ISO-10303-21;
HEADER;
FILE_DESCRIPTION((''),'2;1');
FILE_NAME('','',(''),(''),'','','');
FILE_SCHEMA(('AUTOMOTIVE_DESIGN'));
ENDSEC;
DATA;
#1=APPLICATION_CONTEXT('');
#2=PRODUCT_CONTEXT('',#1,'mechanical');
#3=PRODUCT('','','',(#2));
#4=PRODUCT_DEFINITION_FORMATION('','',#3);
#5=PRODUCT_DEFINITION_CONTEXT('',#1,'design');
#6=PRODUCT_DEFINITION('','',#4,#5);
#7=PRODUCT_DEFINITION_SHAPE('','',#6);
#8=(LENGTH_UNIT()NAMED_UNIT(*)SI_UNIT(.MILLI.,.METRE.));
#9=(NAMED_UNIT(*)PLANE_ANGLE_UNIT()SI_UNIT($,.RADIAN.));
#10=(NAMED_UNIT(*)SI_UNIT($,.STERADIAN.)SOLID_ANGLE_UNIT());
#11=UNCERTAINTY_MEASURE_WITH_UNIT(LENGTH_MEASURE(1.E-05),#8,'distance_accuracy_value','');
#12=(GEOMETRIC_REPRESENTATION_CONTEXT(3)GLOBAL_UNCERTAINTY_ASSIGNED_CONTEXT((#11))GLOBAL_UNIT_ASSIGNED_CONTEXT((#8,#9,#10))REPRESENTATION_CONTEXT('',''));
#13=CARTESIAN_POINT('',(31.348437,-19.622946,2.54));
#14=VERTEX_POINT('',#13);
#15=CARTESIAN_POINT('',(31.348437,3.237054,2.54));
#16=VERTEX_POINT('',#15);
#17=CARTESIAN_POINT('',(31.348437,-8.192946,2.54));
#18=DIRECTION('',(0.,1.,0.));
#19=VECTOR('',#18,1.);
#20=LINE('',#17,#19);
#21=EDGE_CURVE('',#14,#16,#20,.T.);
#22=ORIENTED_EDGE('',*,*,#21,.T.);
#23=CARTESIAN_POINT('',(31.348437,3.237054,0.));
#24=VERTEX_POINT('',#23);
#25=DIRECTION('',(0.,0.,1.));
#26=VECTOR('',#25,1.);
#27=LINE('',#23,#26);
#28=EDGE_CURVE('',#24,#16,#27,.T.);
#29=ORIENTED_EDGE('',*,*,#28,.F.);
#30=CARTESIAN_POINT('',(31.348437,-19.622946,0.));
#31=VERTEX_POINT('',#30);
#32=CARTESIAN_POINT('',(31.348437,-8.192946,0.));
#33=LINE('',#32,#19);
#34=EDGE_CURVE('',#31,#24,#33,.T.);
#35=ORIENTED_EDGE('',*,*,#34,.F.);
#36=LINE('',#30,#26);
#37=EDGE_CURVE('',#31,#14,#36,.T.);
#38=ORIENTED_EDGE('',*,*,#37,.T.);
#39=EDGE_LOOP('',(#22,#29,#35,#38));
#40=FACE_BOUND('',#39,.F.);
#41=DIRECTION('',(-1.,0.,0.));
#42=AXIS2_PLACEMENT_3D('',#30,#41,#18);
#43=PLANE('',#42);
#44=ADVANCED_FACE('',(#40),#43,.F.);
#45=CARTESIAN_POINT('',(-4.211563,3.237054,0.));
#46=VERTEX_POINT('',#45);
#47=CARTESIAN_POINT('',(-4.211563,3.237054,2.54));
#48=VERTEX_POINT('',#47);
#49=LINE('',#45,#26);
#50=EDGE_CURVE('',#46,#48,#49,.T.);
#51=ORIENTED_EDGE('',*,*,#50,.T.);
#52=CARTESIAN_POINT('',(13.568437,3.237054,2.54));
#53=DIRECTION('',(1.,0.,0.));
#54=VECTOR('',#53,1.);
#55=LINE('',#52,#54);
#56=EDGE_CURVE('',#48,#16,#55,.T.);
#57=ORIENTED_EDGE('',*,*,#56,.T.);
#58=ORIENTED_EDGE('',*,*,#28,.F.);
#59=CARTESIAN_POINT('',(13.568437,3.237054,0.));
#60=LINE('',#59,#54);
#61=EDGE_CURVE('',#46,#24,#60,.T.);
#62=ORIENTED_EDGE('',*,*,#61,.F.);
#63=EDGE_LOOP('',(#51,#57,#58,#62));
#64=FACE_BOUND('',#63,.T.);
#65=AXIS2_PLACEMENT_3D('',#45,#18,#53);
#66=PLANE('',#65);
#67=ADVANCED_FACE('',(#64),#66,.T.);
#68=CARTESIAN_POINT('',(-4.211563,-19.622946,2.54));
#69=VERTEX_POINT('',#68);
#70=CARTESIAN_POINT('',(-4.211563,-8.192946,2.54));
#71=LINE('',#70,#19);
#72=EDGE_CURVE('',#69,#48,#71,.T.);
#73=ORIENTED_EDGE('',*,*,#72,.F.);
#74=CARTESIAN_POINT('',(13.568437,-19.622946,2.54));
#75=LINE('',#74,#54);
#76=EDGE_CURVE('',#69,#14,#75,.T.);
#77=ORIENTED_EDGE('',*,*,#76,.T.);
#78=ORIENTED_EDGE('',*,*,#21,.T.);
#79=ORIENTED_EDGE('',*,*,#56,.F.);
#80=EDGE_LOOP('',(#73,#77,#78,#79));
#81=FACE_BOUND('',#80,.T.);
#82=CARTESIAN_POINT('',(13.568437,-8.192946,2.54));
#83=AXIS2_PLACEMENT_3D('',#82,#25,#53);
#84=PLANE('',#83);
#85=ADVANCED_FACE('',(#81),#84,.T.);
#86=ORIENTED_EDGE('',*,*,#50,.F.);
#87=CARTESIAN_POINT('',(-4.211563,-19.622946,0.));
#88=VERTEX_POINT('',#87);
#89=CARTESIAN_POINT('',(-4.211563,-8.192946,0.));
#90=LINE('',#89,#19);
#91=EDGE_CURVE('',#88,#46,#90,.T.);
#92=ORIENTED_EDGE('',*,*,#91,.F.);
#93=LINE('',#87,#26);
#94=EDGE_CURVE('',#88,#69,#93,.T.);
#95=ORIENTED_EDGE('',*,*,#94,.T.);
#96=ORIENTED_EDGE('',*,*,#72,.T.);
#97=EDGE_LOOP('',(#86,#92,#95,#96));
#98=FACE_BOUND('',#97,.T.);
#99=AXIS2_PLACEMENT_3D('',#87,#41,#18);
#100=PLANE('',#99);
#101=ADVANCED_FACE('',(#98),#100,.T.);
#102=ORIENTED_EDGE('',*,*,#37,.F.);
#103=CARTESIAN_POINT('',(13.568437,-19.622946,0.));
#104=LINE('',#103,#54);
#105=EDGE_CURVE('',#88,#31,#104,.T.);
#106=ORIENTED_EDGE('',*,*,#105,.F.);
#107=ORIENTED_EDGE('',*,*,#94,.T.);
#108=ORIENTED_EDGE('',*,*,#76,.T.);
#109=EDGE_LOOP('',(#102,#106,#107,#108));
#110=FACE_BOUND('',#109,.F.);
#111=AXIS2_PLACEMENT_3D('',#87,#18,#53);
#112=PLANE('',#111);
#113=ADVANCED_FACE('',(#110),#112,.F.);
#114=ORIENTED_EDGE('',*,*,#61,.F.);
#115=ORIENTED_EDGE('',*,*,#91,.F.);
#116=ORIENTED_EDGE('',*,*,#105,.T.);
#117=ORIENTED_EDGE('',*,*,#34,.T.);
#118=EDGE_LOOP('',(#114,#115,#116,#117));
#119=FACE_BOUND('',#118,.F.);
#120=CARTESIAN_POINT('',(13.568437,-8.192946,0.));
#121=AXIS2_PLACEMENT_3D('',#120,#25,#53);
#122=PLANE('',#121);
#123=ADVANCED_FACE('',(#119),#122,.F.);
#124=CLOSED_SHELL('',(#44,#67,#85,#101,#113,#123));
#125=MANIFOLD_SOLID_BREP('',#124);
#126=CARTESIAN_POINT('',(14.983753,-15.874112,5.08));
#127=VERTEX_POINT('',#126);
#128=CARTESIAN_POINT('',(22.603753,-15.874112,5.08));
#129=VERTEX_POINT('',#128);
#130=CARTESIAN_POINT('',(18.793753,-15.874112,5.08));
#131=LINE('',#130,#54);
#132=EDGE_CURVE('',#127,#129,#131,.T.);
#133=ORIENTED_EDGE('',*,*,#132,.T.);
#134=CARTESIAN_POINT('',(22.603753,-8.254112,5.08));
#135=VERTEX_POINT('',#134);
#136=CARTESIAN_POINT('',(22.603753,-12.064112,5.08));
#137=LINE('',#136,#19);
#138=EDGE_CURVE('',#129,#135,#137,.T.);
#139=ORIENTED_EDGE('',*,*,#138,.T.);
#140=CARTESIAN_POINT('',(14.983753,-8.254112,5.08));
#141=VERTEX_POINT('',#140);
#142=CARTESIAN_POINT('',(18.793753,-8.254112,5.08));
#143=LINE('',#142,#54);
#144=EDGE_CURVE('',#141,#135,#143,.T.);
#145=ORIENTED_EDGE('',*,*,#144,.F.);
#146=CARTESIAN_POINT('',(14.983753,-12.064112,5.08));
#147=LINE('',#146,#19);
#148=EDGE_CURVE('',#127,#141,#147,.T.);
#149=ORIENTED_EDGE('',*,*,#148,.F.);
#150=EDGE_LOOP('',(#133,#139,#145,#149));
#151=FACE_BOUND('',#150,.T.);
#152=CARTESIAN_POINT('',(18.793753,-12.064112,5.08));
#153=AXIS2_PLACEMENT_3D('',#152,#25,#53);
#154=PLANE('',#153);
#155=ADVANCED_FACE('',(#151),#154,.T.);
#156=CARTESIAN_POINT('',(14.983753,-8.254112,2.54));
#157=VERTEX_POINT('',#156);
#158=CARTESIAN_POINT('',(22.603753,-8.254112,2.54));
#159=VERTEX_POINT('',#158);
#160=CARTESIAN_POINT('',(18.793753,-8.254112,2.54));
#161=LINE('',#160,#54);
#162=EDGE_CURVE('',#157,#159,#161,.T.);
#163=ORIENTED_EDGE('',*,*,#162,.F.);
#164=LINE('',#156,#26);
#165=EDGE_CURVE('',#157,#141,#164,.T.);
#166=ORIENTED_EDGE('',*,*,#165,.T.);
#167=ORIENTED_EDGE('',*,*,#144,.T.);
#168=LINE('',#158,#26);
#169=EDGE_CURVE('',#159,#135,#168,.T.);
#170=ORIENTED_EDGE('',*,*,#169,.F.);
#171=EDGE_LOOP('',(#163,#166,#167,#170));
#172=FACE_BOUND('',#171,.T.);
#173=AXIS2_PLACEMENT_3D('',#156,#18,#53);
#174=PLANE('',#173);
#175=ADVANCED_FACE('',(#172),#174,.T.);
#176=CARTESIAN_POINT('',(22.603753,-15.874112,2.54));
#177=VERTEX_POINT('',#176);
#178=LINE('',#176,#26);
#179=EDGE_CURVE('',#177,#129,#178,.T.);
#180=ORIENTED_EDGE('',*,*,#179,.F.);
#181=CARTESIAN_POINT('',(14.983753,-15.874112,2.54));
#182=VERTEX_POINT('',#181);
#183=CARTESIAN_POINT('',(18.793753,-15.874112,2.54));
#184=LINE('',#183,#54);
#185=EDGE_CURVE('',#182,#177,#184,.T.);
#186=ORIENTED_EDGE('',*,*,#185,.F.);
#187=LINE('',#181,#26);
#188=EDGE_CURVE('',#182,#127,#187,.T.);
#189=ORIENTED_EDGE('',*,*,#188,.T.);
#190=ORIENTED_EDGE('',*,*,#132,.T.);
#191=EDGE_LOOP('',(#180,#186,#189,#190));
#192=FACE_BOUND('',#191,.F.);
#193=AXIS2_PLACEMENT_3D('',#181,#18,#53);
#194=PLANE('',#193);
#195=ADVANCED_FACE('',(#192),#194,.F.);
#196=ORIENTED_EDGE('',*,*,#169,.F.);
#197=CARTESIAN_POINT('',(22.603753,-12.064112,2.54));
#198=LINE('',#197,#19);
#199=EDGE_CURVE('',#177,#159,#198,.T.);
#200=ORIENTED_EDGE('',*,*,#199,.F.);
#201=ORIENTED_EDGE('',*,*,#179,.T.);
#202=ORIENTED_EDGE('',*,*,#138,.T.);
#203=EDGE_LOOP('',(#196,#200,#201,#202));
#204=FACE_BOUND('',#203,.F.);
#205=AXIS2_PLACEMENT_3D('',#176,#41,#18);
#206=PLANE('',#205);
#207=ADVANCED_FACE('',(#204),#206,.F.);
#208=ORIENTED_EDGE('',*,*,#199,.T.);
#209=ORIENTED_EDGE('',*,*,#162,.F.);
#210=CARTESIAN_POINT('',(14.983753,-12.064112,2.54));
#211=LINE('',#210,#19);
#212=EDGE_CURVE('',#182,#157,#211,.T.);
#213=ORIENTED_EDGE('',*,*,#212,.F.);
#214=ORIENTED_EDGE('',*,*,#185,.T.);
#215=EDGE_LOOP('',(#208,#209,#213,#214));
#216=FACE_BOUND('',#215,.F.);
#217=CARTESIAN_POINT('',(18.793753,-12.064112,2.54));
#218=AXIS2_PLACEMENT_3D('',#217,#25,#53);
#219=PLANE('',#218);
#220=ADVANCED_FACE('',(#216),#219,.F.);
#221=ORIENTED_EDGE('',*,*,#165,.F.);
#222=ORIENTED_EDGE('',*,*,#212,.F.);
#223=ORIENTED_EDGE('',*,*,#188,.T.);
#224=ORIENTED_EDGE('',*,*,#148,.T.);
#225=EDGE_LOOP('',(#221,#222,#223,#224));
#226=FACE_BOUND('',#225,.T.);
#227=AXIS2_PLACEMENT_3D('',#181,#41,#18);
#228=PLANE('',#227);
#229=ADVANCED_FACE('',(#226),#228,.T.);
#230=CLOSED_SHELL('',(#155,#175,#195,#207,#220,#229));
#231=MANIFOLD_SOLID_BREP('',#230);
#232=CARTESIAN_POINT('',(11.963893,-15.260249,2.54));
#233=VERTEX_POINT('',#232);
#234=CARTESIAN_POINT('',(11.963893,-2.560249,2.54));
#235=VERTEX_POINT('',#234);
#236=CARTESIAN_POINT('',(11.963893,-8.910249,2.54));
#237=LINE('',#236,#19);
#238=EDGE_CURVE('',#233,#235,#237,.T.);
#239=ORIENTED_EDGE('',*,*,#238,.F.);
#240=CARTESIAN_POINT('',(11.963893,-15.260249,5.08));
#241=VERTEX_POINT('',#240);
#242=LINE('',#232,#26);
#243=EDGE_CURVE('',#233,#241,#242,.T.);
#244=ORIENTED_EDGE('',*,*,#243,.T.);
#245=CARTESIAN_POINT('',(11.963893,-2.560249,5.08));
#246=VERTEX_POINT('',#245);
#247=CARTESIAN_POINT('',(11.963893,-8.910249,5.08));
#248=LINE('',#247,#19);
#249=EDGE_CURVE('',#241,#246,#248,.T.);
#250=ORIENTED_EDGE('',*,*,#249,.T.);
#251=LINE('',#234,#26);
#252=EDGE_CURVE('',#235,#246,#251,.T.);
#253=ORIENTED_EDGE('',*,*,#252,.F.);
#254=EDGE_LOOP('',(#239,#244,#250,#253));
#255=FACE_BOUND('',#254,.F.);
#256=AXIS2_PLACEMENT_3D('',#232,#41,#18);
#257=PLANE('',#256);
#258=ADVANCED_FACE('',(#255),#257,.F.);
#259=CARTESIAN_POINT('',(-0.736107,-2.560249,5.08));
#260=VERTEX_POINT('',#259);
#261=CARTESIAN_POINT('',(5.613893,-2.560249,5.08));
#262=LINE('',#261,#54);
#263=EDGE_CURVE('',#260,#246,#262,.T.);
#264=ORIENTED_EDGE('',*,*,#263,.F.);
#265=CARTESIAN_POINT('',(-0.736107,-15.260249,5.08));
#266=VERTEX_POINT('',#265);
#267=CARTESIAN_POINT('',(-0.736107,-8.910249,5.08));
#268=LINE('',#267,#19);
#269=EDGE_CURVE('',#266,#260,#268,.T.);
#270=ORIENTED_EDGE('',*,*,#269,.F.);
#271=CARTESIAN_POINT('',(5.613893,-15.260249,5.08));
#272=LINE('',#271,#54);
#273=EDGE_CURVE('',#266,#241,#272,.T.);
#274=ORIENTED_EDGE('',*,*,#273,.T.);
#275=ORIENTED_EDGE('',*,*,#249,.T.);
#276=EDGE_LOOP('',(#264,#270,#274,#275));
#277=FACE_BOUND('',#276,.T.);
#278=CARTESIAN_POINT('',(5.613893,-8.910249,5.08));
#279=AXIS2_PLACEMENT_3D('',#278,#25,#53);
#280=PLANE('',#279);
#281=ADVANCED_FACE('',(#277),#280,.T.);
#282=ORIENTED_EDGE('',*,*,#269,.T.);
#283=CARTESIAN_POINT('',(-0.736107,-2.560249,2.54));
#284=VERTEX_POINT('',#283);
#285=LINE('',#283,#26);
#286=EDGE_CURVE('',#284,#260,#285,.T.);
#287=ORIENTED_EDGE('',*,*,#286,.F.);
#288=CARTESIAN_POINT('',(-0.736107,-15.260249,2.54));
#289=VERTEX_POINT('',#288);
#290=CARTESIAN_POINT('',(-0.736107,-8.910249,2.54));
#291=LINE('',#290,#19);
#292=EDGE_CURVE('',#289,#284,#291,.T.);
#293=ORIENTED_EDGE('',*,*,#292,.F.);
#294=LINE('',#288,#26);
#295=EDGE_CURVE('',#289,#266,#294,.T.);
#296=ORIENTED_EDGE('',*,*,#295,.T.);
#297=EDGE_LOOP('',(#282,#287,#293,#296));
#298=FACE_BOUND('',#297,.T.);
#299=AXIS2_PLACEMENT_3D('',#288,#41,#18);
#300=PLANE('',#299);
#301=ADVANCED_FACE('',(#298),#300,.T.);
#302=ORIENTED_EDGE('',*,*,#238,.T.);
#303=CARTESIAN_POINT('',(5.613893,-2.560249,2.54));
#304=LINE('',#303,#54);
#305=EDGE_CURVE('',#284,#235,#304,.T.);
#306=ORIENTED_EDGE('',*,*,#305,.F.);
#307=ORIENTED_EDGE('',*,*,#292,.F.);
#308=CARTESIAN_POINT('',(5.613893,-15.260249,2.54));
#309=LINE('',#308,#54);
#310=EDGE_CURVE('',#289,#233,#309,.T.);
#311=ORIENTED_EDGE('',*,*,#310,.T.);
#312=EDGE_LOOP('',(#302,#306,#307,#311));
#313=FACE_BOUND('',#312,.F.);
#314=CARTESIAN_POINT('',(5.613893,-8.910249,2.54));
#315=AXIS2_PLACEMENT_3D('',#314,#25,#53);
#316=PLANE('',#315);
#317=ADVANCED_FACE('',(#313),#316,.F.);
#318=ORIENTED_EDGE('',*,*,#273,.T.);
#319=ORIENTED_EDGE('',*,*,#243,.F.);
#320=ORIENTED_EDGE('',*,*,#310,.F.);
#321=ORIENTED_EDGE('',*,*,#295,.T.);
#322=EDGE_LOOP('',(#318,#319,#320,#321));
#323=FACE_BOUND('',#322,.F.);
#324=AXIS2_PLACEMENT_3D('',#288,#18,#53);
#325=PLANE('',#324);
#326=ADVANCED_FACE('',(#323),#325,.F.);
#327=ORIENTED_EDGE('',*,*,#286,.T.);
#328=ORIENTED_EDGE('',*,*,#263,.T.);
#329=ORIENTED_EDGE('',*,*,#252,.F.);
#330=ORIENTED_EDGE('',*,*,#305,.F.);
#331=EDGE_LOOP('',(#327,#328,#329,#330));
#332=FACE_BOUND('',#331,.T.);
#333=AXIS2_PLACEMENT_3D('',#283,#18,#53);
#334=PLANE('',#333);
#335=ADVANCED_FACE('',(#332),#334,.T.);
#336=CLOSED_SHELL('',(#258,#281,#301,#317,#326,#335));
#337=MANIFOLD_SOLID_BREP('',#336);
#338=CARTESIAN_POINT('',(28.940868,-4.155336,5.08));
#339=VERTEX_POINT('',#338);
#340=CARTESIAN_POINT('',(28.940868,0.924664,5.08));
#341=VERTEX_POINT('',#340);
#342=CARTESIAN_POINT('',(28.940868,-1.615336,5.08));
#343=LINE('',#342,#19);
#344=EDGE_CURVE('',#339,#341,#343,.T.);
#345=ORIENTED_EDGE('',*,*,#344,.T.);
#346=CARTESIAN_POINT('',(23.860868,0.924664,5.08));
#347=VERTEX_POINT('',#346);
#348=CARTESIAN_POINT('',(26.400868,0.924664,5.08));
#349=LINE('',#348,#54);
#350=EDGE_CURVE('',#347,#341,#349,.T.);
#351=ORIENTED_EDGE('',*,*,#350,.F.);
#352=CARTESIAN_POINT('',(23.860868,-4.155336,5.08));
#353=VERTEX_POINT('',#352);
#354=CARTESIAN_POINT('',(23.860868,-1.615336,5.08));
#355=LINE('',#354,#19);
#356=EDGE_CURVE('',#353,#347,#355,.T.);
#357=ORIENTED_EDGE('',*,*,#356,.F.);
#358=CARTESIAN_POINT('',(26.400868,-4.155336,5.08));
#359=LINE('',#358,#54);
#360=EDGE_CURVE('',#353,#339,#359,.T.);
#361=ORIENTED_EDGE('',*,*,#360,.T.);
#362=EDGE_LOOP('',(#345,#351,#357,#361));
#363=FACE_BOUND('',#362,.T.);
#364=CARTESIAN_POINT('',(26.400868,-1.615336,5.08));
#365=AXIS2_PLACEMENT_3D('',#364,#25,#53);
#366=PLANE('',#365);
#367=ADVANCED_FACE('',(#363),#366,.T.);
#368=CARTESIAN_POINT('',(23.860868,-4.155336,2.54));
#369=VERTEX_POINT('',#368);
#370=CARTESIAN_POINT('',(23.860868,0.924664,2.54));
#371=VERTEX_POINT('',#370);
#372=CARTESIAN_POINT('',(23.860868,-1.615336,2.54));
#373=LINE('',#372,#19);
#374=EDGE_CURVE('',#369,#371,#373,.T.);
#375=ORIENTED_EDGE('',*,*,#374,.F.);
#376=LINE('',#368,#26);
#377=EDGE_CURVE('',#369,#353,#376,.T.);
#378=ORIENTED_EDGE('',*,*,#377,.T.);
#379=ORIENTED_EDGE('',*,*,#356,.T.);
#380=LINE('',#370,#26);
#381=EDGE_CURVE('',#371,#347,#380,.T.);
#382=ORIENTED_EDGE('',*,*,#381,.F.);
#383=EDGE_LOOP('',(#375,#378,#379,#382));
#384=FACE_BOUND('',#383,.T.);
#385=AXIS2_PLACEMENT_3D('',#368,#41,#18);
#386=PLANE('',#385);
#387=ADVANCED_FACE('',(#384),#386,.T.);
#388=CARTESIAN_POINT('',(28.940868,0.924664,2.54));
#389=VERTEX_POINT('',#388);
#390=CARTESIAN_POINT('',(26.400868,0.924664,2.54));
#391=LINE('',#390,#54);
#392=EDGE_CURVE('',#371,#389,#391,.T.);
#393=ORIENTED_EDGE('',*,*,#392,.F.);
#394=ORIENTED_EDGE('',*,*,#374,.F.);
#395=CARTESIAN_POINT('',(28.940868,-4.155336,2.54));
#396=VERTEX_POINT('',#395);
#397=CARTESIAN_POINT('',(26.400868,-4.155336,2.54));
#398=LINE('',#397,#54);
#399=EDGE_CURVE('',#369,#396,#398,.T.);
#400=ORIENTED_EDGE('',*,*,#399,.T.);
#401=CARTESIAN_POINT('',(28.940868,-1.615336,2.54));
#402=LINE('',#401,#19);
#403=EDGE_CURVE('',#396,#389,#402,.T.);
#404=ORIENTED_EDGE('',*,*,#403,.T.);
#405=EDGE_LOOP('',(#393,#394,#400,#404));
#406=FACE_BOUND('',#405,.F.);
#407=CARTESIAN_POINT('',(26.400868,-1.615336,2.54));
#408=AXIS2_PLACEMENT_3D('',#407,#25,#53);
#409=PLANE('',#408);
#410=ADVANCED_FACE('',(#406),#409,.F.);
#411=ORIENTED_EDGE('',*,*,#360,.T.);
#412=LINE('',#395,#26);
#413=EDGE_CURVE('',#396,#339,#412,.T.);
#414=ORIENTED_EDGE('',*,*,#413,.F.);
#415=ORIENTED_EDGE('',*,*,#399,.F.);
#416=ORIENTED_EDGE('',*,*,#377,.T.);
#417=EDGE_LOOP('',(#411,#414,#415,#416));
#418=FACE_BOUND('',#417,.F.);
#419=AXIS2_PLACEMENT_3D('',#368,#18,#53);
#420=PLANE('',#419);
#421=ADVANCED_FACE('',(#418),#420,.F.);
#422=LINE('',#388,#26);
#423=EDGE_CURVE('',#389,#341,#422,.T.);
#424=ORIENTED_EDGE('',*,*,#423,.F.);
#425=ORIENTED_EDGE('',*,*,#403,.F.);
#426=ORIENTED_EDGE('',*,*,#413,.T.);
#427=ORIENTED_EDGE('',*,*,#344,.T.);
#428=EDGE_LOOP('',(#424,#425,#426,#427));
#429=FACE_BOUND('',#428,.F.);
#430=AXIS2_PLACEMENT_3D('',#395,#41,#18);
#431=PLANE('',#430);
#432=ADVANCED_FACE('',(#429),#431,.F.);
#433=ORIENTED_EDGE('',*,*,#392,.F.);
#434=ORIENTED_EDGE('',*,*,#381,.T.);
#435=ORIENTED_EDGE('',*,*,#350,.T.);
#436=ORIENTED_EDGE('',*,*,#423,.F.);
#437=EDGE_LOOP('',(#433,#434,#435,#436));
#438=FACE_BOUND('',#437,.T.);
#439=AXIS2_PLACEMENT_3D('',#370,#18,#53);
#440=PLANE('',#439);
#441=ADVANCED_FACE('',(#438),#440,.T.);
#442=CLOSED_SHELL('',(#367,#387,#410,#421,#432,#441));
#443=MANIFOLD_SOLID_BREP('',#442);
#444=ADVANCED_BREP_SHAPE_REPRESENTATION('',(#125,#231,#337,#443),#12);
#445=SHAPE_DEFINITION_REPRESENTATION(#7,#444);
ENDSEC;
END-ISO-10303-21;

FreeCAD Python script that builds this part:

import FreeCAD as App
import Part
import Sketcher
Q = App.Units.Quantity

doc = App.newDocument("Part")
body = doc.addObject("PartDesign::Body", "Body")

sketch1 = doc.addObject("Sketcher::SketchObject", "Sketch")
body.addObject(sketch1)
sketch1.AttachmentSupport = (doc.XY_Plane, [""])
sketch1.MapMode = "FlatFace"
sketch1.addGeometry([
    Part.LineSegment(App.Vector(-4.211563, 3.237054, 0), App.Vector(-4.211563, -19.622946, 0)),
    Part.LineSegment(App.Vector(-4.211563, -19.622946, 0), App.Vector(31.348437, -19.622946, 0)),
    Part.LineSegment(App.Vector(31.348437, -19.622946, 0), App.Vector(31.348437, 3.237054, 0)),
    Part.LineSegment(App.Vector(31.348437, 3.237054, 0), App.Vector(-4.211563, 3.237054, 0)),
], False)
sketch1.addConstraint([
    Sketcher.Constraint("Coincident", 0, 2, 1, 1),
    Sketcher.Constraint("Coincident", 1, 2, 2, 1),
    Sketcher.Constraint("Coincident", 2, 2, 3, 1),
    Sketcher.Constraint("Coincident", 3, 2, 0, 1),
    Sketcher.Constraint("Vertical", 0),
    Sketcher.Constraint("Horizontal", 1),
    Sketcher.Constraint("Vertical", 2),
    Sketcher.Constraint("Horizontal", 3),
    Sketcher.Constraint("DistanceX", 1, 1, 1, 2, Q("1.4 in")),
    Sketcher.Constraint("DistanceY", 0, 2, 0, 1, Q("0.9 in")),
    Sketcher.Constraint("DistanceX", 0, 2, -1, 1, Q("4.211563 mm")),
    Sketcher.Constraint("DistanceY", 0, 2, -1, 1, Q("19.622946 mm")),
])
pad1 = doc.addObject("PartDesign::Pad", "Pad")
body.addObject(pad1)
pad1.Profile = sketch1
pad1.Length = Q("0.1 in")
body2 = doc.addObject("PartDesign::Body", "Body001")
body2.AllowCompound = True

sketch2 = doc.addObject("Sketcher::SketchObject", "Sketch001")
body2.addObject(sketch2)
sketch2.AttachmentSupport = (doc.getObject("XY_Plane001"), [""])
sketch2.MapMode = "FlatFace"
sketch2.AttachmentOffset = App.Placement(App.Vector(0, 0, 0.1 * 25.4), App.Rotation())
sketch2.addGeometry([
    Part.LineSegment(App.Vector(23.860868, 0.924664, 0), App.Vector(23.860868, -4.155336, 0)),
    Part.LineSegment(App.Vector(23.860868, -4.155336, 0), App.Vector(28.940868, -4.155336, 0)),
    Part.LineSegment(App.Vector(28.940868, -4.155336, 0), App.Vector(28.940868, 0.924664, 0)),
    Part.LineSegment(App.Vector(28.940868, 0.924664, 0), App.Vector(23.860868, 0.924664, 0)),
    Part.LineSegment(App.Vector(14.983753, -8.254112, 0), App.Vector(14.983753, -15.874112, 0)),
    Part.LineSegment(App.Vector(14.983753, -15.874112, 0), App.Vector(22.603753, -15.874112, 0)),
    Part.LineSegment(App.Vector(22.603753, -15.874112, 0), App.Vector(22.603753, -8.254112, 0)),
    Part.LineSegment(App.Vector(22.603753, -8.254112, 0), App.Vector(14.983753, -8.254112, 0)),
    Part.LineSegment(App.Vector(-0.736107, -2.560249, 0), App.Vector(-0.736107, -15.260249, 0)),
    Part.LineSegment(App.Vector(-0.736107, -15.260249, 0), App.Vector(11.963893, -15.260249, 0)),
    Part.LineSegment(App.Vector(11.963893, -15.260249, 0), App.Vector(11.963893, -2.560249, 0)),
    Part.LineSegment(App.Vector(11.963893, -2.560249, 0), App.Vector(-0.736107, -2.560249, 0)),
], False)
sketch2.addConstraint([
    Sketcher.Constraint("Coincident", 0, 2, 1, 1),
    Sketcher.Constraint("Coincident", 1, 2, 2, 1),
    Sketcher.Constraint("Coincident", 2, 2, 3, 1),
    Sketcher.Constraint("Coincident", 3, 2, 0, 1),
    Sketcher.Constraint("Coincident", 4, 2, 5, 1),
    Sketcher.Constraint("Coincident", 5, 2, 6, 1),
    Sketcher.Constraint("Coincident", 6, 2, 7, 1),
    Sketcher.Constraint("Coincident", 7, 2, 4, 1),
    Sketcher.Constraint("Coincident", 8, 2, 9, 1),
    Sketcher.Constraint("Coincident", 9, 2, 10, 1),
    Sketcher.Constraint("Coincident", 10, 2, 11, 1),
    Sketcher.Constraint("Coincident", 11, 2, 8, 1),
    Sketcher.Constraint("Vertical", 0),
    Sketcher.Constraint("Horizontal", 1),
    Sketcher.Constraint("Vertical", 2),
    Sketcher.Constraint("Horizontal", 3),
    Sketcher.Constraint("Vertical", 4),
    Sketcher.Constraint("Horizontal", 5),
    Sketcher.Constraint("Vertical", 6),
    Sketcher.Constraint("Horizontal", 7),
    Sketcher.Constraint("Vertical", 8),
    Sketcher.Constraint("Horizontal", 9),
    Sketcher.Constraint("Vertical", 10),
    Sketcher.Constraint("Horizontal", 11),
    Sketcher.Constraint("Equal", 3, 0),
    Sketcher.Constraint("Equal", 7, 4),
    Sketcher.Constraint("Equal", 11, 8),
    Sketcher.Constraint("DistanceX", 1, 1, 1, 2, Q("0.2 in")),
    Sketcher.Constraint("DistanceX", 5, 1, 5, 2, Q("0.3 in")),
    Sketcher.Constraint("DistanceX", 9, 1, 9, 2, Q("0.5 in")),
    Sketcher.Constraint("DistanceX", -1, 1, 0, 2, Q("23.860868 mm")),
    Sketcher.Constraint("DistanceY", 6, 2, -1, 1, Q("8.254112 mm")),
    Sketcher.Constraint("DistanceY", 8, 2, -1, 1, Q("15.260249 mm")),
    Sketcher.Constraint("DistanceX", 8, 2, 4, 2, Q("15.71986 mm")),
    Sketcher.Constraint("DistanceY", 0, 2, -1, 1, Q("4.155336 mm")),
    Sketcher.Constraint("DistanceX", -1, 1, 4, 2, Q("14.983753 mm")),
])
pad2 = doc.addObject("PartDesign::Pad", "Pad001")
body2.addObject(pad2)
pad2.Profile = sketch2
pad2.Length = Q("0.1 in")

doc.recompute()
